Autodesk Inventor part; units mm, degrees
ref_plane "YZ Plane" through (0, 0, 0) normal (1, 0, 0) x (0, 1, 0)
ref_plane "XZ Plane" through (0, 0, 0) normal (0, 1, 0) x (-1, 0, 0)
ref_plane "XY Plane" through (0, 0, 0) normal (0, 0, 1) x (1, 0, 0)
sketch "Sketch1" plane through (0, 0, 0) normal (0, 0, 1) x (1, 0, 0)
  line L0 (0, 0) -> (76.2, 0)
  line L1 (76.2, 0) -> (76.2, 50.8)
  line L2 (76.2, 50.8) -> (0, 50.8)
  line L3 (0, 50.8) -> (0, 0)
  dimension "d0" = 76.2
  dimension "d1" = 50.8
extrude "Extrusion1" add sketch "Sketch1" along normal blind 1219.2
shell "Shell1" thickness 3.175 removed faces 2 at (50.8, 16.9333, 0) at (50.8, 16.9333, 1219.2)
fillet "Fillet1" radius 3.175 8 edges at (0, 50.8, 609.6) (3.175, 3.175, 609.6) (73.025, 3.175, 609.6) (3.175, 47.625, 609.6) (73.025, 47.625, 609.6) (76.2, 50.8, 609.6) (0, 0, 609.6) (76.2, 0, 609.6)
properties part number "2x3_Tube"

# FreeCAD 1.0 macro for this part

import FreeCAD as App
import Part
import Sketcher
Q = App.Units.Quantity


def edges_at(feature, points):
    """Names of the edges that pass closest to the given points."""
    edges = feature.Shape.Edges
    near = lambda p: min(range(len(edges)), key=lambda i: edges[i].distToShape(Part.Vertex(*p))[0])
    return sorted({f"Edge{near(p) + 1}" for p in points})


def faces_at(feature, points):
    """Names of the faces that lie closest to the given points."""
    faces = feature.Shape.Faces
    near = lambda p: min(range(len(faces)), key=lambda i: faces[i].distToShape(Part.Vertex(*p))[0])
    return sorted({f"Face{near(p) + 1}" for p in points})


def add_polygon(sketch, points):
    """Adds a closed chain of lines whose ends are joined by coincident constraints."""
    first, n = sketch.GeometryCount, len(points)
    for a, b in zip(points, points[1:] + points[:1]):
        sketch.addGeometry(Part.LineSegment(App.Vector(*a, 0), App.Vector(*b, 0)), False)
    for i in range(n):
        sketch.addConstraint(Sketcher.Constraint("Coincident", first + i, 2, first + (i + 1) % n, 1))

doc = App.newDocument("Part")
params = doc.addObject("Spreadsheet::Sheet", "Params")
for row, (alias, value) in enumerate([
    ("sketch1_width", "3 in"),
    ("sketch1_height", "2 in"),
    ("pad1_length", "48 in"),
    ("thickness_wall", "0.125 in"),
    ("fillet_radius", "0.125 in"),
], start=1):
    params.set(f"A{row}", alias)
    params.set(f"B{row}", "=" + value)
    params.setAlias(f"B{row}", alias)

body = doc.addObject("PartDesign::Body", "Body")

# Sketch on XY plane
sketch1 = doc.addObject("Sketcher::SketchObject", "Sketch")
body.addObject(sketch1)
sketch1.AttachmentSupport = (doc.XY_Plane, [""])
sketch1.MapMode = "FlatFace"
add_polygon(sketch1, [(0, 50.8), (0, 0), (76.2, 0), (76.2, 50.8)])  # lines 0-3
sketch1.addConstraint([
    Sketcher.Constraint("Vertical", 0),
    Sketcher.Constraint("Horizontal", 1),
    Sketcher.Constraint("Vertical", 2),
    Sketcher.Constraint("Horizontal", 3),
    Sketcher.Constraint("Coincident", 0, 2, -1, 1),
    Sketcher.Constraint("DistanceX", 1, 1, 1, 2, Q("3 in")),
    Sketcher.Constraint("DistanceY", 0, 2, 0, 1, Q("2 in")),
])
sketch1.setExpression("Constraints[9]", "Params.sketch1_width")
sketch1.setExpression("Constraints[10]", "Params.sketch1_height")
pad1 = doc.addObject("PartDesign::Pad", "Pad")
body.addObject(pad1)
pad1.Profile = sketch1
pad1.setExpression("Length", "Params.pad1_length")
doc.recompute()

thickness = doc.addObject("PartDesign::Thickness", "Thickness")
body.addObject(thickness)
thickness.Base = (pad1, faces_at(pad1, [(50.8, 16.933, 0), (50.8, 16.933, 1219.2)]))
thickness.setExpression("Value", "Params.thickness_wall")
thickness.Reversed = True
thickness.Join = "Intersection"
doc.recompute()

fillet = doc.addObject("PartDesign::Fillet", "Fillet")
body.addObject(fillet)
fillet.Base = (thickness, edges_at(thickness, [
    (0, 50.8, 609.6),
    (3.175, 3.175, 609.6),
    (73.025, 3.175, 609.6),
    (3.175, 47.625, 609.6),
    (73.025, 47.625, 609.6),
    (76.2, 50.8, 609.6),
    (0, 0, 609.6),
    (76.2, 0, 609.6),
]))
fillet.setExpression("Radius", "Params.fillet_radius")

doc.recompute()
